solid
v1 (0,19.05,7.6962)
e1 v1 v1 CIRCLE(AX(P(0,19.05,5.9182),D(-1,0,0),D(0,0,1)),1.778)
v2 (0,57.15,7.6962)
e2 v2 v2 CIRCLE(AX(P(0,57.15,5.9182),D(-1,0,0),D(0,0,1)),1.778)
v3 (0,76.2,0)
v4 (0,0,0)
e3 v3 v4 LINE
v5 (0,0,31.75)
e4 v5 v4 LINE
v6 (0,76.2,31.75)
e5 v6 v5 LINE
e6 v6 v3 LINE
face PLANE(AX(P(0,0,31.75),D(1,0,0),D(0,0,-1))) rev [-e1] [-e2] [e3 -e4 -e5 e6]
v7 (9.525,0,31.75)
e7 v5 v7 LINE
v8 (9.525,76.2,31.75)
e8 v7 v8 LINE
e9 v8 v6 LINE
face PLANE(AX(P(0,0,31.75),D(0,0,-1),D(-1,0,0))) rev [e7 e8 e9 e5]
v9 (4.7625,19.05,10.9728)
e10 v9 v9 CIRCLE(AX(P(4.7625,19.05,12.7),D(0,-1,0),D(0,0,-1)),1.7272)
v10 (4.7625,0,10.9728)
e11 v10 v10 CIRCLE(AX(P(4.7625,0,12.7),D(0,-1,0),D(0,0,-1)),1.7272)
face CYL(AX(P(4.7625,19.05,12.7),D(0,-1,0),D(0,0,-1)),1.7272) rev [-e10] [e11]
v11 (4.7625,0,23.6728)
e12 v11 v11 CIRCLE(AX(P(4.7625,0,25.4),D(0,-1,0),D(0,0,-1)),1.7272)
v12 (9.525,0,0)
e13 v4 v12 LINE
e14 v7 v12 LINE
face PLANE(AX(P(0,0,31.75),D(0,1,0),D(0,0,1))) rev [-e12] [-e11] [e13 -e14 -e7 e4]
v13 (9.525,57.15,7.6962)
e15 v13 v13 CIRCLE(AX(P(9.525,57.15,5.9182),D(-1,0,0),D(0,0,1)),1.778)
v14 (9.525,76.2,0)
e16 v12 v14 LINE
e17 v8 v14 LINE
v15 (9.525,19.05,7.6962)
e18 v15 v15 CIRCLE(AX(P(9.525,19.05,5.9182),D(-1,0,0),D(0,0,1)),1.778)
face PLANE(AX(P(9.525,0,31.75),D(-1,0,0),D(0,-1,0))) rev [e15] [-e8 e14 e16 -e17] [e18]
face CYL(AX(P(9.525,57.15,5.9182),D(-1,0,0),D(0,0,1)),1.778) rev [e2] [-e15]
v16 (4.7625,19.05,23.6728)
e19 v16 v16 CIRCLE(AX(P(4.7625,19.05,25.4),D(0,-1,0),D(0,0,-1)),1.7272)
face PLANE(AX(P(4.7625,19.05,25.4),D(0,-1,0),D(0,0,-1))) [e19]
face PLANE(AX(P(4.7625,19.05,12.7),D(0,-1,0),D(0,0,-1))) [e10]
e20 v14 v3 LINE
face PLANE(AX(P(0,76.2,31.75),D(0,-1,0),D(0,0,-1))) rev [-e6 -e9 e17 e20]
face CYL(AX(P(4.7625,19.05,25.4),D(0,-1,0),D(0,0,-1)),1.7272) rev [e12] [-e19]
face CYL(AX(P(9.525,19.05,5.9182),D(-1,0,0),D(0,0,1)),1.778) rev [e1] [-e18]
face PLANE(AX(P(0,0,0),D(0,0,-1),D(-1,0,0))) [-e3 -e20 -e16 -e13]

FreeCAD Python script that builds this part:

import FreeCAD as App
import Part
import Sketcher
Q = App.Units.Quantity


def add_polygon(sketch, points):
    """Adds a closed chain of lines whose ends are joined by coincident constraints."""
    first, n = sketch.GeometryCount, len(points)
    for a, b in zip(points, points[1:] + points[:1]):
        sketch.addGeometry(Part.LineSegment(App.Vector(*a, 0), App.Vector(*b, 0)), False)
    for i in range(n):
        sketch.addConstraint(Sketcher.Constraint("Coincident", first + i, 2, first + (i + 1) % n, 1))

doc = App.newDocument("Part")
body = doc.addObject("PartDesign::Body", "Body")

sketch1 = body.newObject("Sketcher::SketchObject", "Sketch")
sketch1.AttachmentSupport = (doc.getObject("XY_Plane"), [""])
sketch1.MapMode = "FlatFace"
add_polygon(sketch1, [(0, 76), (0, 0), (10, 0), (10, 76)])
sketch1.addConstraint([
    Sketcher.Constraint("Vertical", 0),
    Sketcher.Constraint("Horizontal", 1),
    Sketcher.Constraint("Vertical", 2),
    Sketcher.Constraint("Horizontal", 3),
    Sketcher.Constraint("Coincident", 0, 2, -1, 1),
    Sketcher.Constraint("DistanceY", 0, 2, 0, 1, Q("3 in")),
    Sketcher.Constraint("DistanceX", 1, 1, 1, 2, Q("0.375 in")),
])
pad1 = body.newObject("PartDesign::Pad", "Pad")
pad1.Profile = sketch1
pad1.Length = Q("1.25 in")

sketch2 = body.newObject("Sketcher::SketchObject", "Sketch001")
sketch2.AttachmentSupport = (doc.getObject("YZ_Plane"), [""])
sketch2.MapMode = "FlatFace"
sketch2.addGeometry([
    Part.Circle(App.Vector(57.1, 5.9, 0), App.Vector(0, 0, 1), 1.8),
    Part.Circle(App.Vector(19.1, 5.9, 0), App.Vector(0, 0, 1), 1.8),
], False)
sketch2.addConstraint([
    Sketcher.Constraint("Equal", 0, 1),
    Sketcher.Constraint("Horizontal", 0, 3, 1, 3),
    Sketcher.Constraint("Diameter", 0, Q("0.14 in")),
    Sketcher.Constraint("DistanceX", 1, 3, 0, 3, Q("1.5 in")),
    Sketcher.Constraint("DistanceX", -1, 1, 0, 3, Q("2.25 in")),
    Sketcher.Constraint("DistanceY", -1, 1, 0, 3, Q("0.233 in")),
])
pocket1 = body.newObject("PartDesign::Pocket", "Pocket")
pocket1.Profile = sketch2
pocket1.Type = "ThroughAll"
pocket1.Reversed = True

sketch3 = body.newObject("Sketcher::SketchObject", "Sketch002")
sketch3.AttachmentSupport = (doc.getObject("XZ_Plane"), [""])
sketch3.MapMode = "FlatFace"
sketch3.addGeometry([
    Part.Circle(App.Vector(4.8, 25.4, 0), App.Vector(0, 0, 1), 1.7),
    Part.Circle(App.Vector(4.8, 12.7, 0), App.Vector(0, 0, 1), 1.7),
], False)
sketch3.addConstraint([
    Sketcher.Constraint("Equal", 0, 1),
    Sketcher.Constraint("Vertical", 0, 3, 1, 3),
    Sketcher.Constraint("Diameter", 0, Q("0.136 in")),
    Sketcher.Constraint("DistanceY", -1, 1, 0, 3, Q("1 in")),
    Sketcher.Constraint("DistanceY", -1, 1, 1, 3, Q("0.5 in")),
    Sketcher.Constraint("DistanceX", -1, 1, 0, 3, Q("0.1875 in")),
])
pocket2 = body.newObject("PartDesign::Pocket", "Pocket001")
pocket2.Profile = sketch3
pocket2.Length = Q("0.75 in")

doc.recompute()
